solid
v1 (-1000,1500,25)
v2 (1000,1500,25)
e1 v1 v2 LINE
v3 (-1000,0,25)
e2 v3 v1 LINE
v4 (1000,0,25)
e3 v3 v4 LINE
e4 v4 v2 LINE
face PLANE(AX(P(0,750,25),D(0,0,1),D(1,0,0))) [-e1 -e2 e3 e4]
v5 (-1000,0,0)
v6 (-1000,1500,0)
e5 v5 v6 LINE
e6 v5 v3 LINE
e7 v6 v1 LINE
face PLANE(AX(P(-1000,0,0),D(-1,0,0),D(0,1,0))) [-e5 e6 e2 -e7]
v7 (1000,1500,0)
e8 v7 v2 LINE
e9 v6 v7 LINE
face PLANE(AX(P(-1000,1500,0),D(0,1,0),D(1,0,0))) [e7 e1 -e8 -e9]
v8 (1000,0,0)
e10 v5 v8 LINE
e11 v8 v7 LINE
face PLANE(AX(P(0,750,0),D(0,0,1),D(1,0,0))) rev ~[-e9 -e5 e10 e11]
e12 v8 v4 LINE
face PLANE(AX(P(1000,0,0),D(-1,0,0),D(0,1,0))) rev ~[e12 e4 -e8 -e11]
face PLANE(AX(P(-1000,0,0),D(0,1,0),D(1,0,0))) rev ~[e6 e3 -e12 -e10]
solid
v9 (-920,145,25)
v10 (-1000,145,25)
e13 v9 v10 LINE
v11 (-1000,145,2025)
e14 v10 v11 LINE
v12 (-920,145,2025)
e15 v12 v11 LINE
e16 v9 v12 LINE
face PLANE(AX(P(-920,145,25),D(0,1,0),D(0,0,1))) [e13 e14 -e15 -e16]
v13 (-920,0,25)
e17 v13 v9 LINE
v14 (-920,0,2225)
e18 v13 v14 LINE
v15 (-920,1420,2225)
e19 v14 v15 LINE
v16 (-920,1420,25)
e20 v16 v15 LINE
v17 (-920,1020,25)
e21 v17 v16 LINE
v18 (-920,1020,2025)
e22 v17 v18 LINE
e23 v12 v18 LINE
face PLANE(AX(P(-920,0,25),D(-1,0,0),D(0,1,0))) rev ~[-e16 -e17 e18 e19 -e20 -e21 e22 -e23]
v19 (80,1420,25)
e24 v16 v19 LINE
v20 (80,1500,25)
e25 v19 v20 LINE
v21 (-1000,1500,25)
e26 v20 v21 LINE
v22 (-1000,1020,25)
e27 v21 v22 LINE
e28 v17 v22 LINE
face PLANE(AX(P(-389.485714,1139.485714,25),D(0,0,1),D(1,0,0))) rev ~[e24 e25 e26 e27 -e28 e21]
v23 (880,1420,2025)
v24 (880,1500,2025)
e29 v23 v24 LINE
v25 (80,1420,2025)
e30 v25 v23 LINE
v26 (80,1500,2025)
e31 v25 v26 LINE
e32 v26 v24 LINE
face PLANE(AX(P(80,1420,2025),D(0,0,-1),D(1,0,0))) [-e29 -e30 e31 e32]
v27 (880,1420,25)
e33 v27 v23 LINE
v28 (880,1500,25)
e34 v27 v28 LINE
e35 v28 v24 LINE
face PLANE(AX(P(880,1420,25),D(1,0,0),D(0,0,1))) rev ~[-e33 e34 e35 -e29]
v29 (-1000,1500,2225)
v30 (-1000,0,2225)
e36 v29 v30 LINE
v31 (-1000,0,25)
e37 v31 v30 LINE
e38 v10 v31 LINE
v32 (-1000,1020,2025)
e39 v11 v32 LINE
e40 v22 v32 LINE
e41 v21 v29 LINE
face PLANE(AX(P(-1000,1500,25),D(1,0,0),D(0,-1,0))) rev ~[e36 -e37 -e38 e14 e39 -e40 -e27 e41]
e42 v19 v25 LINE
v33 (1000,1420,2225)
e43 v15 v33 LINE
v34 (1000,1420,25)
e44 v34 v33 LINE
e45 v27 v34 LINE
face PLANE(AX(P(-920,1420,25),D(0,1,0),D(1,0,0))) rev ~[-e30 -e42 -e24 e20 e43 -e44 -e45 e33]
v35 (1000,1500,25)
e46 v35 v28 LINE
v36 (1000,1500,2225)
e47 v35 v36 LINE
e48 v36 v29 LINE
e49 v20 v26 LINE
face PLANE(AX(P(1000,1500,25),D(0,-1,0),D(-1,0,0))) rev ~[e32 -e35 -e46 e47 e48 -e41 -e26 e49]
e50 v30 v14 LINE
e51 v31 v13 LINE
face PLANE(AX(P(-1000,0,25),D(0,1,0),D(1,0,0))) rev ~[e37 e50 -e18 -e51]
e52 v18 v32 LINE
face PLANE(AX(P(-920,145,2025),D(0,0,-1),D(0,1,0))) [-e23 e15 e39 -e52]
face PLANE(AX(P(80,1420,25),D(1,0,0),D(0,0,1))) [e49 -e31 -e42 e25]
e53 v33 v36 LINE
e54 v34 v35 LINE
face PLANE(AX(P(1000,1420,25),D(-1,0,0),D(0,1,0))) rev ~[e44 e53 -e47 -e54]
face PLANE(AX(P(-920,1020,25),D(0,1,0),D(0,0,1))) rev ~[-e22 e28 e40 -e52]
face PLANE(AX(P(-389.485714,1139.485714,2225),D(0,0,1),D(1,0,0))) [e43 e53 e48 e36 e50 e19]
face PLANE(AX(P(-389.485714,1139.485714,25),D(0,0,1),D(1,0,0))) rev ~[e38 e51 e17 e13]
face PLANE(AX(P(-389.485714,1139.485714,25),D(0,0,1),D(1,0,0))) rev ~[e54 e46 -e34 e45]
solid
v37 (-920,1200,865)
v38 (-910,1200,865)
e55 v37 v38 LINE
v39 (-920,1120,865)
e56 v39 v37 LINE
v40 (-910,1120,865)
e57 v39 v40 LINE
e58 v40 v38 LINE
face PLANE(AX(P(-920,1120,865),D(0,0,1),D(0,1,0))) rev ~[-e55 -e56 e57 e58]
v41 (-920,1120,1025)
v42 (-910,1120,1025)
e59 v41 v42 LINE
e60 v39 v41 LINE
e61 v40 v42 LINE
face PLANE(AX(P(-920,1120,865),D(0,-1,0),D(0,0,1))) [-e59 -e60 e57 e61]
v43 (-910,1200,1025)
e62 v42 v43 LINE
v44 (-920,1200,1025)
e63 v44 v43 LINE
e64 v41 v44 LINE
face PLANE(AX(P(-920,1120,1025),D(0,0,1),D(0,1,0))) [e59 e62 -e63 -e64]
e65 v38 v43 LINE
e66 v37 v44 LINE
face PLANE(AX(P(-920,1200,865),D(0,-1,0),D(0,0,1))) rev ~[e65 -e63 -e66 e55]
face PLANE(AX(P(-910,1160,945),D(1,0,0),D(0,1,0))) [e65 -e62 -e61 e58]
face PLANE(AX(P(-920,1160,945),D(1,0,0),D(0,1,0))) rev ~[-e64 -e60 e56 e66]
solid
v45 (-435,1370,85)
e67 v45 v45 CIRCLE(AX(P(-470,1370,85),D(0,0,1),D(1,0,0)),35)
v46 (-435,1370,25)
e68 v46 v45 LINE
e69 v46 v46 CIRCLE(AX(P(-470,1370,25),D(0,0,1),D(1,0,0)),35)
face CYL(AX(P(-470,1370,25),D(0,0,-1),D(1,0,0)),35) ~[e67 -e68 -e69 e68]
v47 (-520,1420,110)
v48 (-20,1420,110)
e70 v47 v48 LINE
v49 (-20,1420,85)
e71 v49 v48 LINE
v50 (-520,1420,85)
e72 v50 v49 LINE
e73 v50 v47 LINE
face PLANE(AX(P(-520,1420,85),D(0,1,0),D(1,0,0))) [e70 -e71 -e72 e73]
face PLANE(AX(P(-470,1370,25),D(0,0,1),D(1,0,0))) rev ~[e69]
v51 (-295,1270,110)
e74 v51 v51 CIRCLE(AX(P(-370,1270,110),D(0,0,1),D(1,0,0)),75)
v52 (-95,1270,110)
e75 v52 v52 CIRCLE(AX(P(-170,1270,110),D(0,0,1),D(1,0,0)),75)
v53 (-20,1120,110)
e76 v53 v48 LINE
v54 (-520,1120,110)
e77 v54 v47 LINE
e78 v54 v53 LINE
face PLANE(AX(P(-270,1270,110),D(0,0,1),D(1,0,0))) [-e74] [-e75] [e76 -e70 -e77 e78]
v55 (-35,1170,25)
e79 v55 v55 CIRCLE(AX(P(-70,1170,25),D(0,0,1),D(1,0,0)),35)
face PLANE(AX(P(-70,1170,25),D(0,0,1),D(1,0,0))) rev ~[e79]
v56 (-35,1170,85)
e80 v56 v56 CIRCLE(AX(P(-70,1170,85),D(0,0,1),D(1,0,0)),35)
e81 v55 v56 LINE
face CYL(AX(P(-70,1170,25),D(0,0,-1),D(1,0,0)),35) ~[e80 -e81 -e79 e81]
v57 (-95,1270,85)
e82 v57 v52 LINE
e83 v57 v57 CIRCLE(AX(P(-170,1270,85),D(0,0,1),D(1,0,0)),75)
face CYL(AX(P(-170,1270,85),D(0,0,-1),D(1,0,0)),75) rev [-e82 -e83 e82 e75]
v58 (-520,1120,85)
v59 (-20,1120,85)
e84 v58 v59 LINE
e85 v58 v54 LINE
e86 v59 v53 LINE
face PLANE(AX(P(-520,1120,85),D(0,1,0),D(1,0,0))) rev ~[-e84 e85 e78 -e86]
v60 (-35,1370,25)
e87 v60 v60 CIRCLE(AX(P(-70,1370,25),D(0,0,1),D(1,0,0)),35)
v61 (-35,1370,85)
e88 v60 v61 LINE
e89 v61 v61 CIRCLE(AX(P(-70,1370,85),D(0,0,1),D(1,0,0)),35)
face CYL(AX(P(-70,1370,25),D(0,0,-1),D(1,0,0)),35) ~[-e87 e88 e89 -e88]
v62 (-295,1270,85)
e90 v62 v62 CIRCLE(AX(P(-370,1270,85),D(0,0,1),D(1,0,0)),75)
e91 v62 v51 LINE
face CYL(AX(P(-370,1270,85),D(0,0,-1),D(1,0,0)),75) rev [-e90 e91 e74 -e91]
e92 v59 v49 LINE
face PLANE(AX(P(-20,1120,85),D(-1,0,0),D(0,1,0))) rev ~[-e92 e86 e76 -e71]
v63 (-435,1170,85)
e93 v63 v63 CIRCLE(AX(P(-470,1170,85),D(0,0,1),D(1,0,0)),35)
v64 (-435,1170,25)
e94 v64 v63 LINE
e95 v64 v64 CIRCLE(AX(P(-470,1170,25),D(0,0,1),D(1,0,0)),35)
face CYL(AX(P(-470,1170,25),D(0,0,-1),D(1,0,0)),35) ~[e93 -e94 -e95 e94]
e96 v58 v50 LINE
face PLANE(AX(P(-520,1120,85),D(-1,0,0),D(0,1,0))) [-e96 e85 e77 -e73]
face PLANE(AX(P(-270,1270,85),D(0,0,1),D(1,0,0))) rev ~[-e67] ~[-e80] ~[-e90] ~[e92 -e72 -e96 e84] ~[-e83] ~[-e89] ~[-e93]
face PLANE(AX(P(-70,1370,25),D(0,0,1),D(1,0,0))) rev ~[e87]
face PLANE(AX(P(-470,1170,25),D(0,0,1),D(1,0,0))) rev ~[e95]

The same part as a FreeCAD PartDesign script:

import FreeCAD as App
import Part
import Sketcher
from FreeCAD import Vector
Q = App.Units.Quantity

doc = App.newDocument("Part")
body = doc.addObject("PartDesign::Body", "Body")

sketch1 = body.newObject("Sketcher::SketchObject", "Sketch")
sketch1.AttachmentSupport = (doc.getObject("XY_Plane"), [""])
sketch1.MapMode = "FlatFace"
sketch1.addGeometry([
    Part.LineSegment(Vector(-1000, 1500, 0), Vector(-1000, 0, 0)),
    Part.LineSegment(Vector(-1000, 0, 0), Vector(1000, 0, 0)),
    Part.LineSegment(Vector(1000, 0, 0), Vector(1000, 1500, 0)),
    Part.LineSegment(Vector(1000, 1500, 0), Vector(-1000, 1500, 0)),
], False)
sketch1.addConstraint([
    Sketcher.Constraint("Coincident", 0, 2, 1, 1),
    Sketcher.Constraint("Coincident", 1, 2, 2, 1),
    Sketcher.Constraint("Coincident", 2, 2, 3, 1),
    Sketcher.Constraint("Coincident", 3, 2, 0, 1),
    Sketcher.Constraint("Vertical", 0),
    Sketcher.Constraint("Horizontal", 1),
    Sketcher.Constraint("Vertical", 2),
    Sketcher.Constraint("Horizontal", 3),
    Sketcher.Constraint("Symmetric", 0, 2, 1, 2, -1, 1),
    Sketcher.Constraint("DistanceX", 1, 1, 1, 2, Q("2000 mm")),
    Sketcher.Constraint("DistanceY", 0, 2, 0, 1, Q("1500 mm")),
])
pad1 = body.newObject("PartDesign::Pad", "Pad")
pad1.Profile = sketch1
pad1.Length = 25
body2 = doc.addObject("PartDesign::Body", "Body001")

sketch2 = body2.newObject("Sketcher::SketchObject", "Sketch001")
sketch2.AttachmentSupport = (doc.getObject("XY_Plane001"), [""])
sketch2.MapMode = "FlatFace"
sketch2.AttachmentOffset = App.Placement(Vector(0, 0, 25), App.Rotation())
sketch2.addGeometry([
    Part.LineSegment(Vector(-1000, 1500, 0), Vector(-1000, 0, 0)),
    Part.LineSegment(Vector(-1000, 0, 0), Vector(-920, 0, 0)),
    Part.LineSegment(Vector(-920, 0, 0), Vector(-920, 1420, 0)),
    Part.LineSegment(Vector(-920, 1420, 0), Vector(1000, 1420, 0)),
    Part.LineSegment(Vector(1000, 1420, 0), Vector(1000, 1500, 0)),
    Part.LineSegment(Vector(1000, 1500, 0), Vector(-1000, 1500, 0)),
], False)
sketch2.addConstraint([
    Sketcher.Constraint("Coincident", 0, 2, 1, 1),
    Sketcher.Constraint("Coincident", 1, 2, 2, 1),
    Sketcher.Constraint("Coincident", 2, 2, 3, 1),
    Sketcher.Constraint("Coincident", 3, 2, 4, 1),
    Sketcher.Constraint("Coincident", 4, 2, 5, 1),
    Sketcher.Constraint("Coincident", 5, 2, 0, 1),
    Sketcher.Constraint("Vertical", 0),
    Sketcher.Constraint("Horizontal", 1),
    Sketcher.Constraint("Vertical", 2),
    Sketcher.Constraint("Horizontal", 3),
    Sketcher.Constraint("Vertical", 4),
    Sketcher.Constraint("Horizontal", 5),
    Sketcher.Constraint("PointOnObject", 0, 2, -1),
    Sketcher.Constraint("Equal", 1, 4),
    Sketcher.Constraint("DistanceX", 1, 1, 1, 2, Q("80 mm")),
    Sketcher.Constraint("DistanceX", 3, 1, 3, 2, Q("1920 mm")),
    Sketcher.Constraint("DistanceY", 0, 2, 0, 1, Q("1500 mm")),
    Sketcher.Constraint("DistanceX", 0, 2, -1, 1, Q("1000 mm")),
])
pad2 = body2.newObject("PartDesign::Pad", "Pad001")
pad2.Profile = sketch2
pad2.Length = 2200

sketch3 = body2.newObject("Sketcher::SketchObject", "Sketch002")
sketch3.AttachmentSupport = (doc.getObject("YZ_Plane001"), [""])
sketch3.MapMode = "FlatFace"
sketch3.AttachmentOffset = App.Placement(Vector(0, 0, -920), App.Rotation())
sketch3.addGeometry([
    Part.LineSegment(Vector(145, 2025, 0), Vector(145, 25, 0)),
    Part.LineSegment(Vector(145, 25, 0), Vector(1020, 25, 0)),
    Part.LineSegment(Vector(1020, 25, 0), Vector(1020, 2025, 0)),
    Part.LineSegment(Vector(1020, 2025, 0), Vector(145, 2025, 0)),
], False)
sketch3.addConstraint([
    Sketcher.Constraint("Coincident", 0, 2, 1, 1),
    Sketcher.Constraint("Coincident", 1, 2, 2, 1),
    Sketcher.Constraint("Coincident", 2, 2, 3, 1),
    Sketcher.Constraint("Coincident", 3, 2, 0, 1),
    Sketcher.Constraint("Vertical", 0),
    Sketcher.Constraint("Horizontal", 1),
    Sketcher.Constraint("Vertical", 2),
    Sketcher.Constraint("Horizontal", 3),
    Sketcher.Constraint("DistanceX", 1, 1, 1, 2, Q("875 mm")),
    Sketcher.Constraint("DistanceY", 0, 2, 0, 1, Q("2000 mm")),
    Sketcher.Constraint("DistanceX", -1, 1, 0, 2, Q("145 mm")),
    Sketcher.Constraint("DistanceY", -1, 1, 0, 2, Q("25 mm")),
])
pocket1 = body2.newObject("PartDesign::Pocket", "Pocket")
pocket1.Profile = sketch3
pocket1.Type = "ThroughAll"

sketch4 = body2.newObject("Sketcher::SketchObject", "Sketch003")
sketch4.AttachmentSupport = (doc.getObject("XZ_Plane001"), [""])
sketch4.MapMode = "FlatFace"
sketch4.AttachmentOffset = App.Placement(Vector(0, 0, -1420), App.Rotation())
sketch4.addGeometry([
    Part.LineSegment(Vector(80, 2025, 0), Vector(80, 25, 0)),
    Part.LineSegment(Vector(80, 25, 0), Vector(880, 25, 0)),
    Part.LineSegment(Vector(880, 25, 0), Vector(880, 2025, 0)),
    Part.LineSegment(Vector(880, 2025, 0), Vector(80, 2025, 0)),
], False)
sketch4.addConstraint([
    Sketcher.Constraint("Coincident", 0, 2, 1, 1),
    Sketcher.Constraint("Coincident", 1, 2, 2, 1),
    Sketcher.Constraint("Coincident", 2, 2, 3, 1),
    Sketcher.Constraint("Coincident", 3, 2, 0, 1),
    Sketcher.Constraint("Vertical", 0),
    Sketcher.Constraint("Horizontal", 1),
    Sketcher.Constraint("Vertical", 2),
    Sketcher.Constraint("Horizontal", 3),
    Sketcher.Constraint("DistanceX", 1, 1, 1, 2, Q("800 mm")),
    Sketcher.Constraint("DistanceY", 0, 2, 0, 1, Q("2000 mm")),
    Sketcher.Constraint("DistanceX", -1, 1, 0, 2, Q("80 mm")),
    Sketcher.Constraint("DistanceY", -1, 1, 0, 2, Q("25 mm")),
])
pocket2 = body2.newObject("PartDesign::Pocket", "Pocket001")
pocket2.Profile = sketch4
pocket2.Type = "ThroughAll"
body3 = doc.addObject("PartDesign::Body", "Body002")

sketch5 = body3.newObject("Sketcher::SketchObject", "Sketch004")
sketch5.AttachmentSupport = (doc.getObject("XY_Plane002"), [""])
sketch5.MapMode = "FlatFace"
sketch5.AttachmentOffset = App.Placement(Vector(0, 0, 25), App.Rotation())
sketch5.addGeometry(Part.Circle(Vector(-470, 1370, 0), Vector(0, 0, 1), 35), False)
sketch5.addConstraint([
    Sketcher.Constraint("Diameter", 0, Q("70 mm")),
    Sketcher.Constraint("DistanceX", 0, 3, -1, 1, Q("470 mm")),
    Sketcher.Constraint("DistanceY", -1, 1, 0, 3, Q("1370 mm")),
])
pad3 = body3.newObject("PartDesign::Pad", "Pad002")
pad3.Profile = sketch5
pad3.Length = 60
body4 = doc.addObject("PartDesign::Body", "Body003")

sketch6 = body4.newObject("Sketcher::SketchObject", "Sketch005")
sketch6.AttachmentSupport = (doc.getObject("XY_Plane003"), [""])
sketch6.MapMode = "FlatFace"
sketch6.AttachmentOffset = App.Placement(Vector(0, 0, 25), App.Rotation())
sketch6.addGeometry(Part.Circle(Vector(-470, 1170, 0), Vector(0, 0, 1), 35), False)
sketch6.addConstraint([
    Sketcher.Constraint("Diameter", 0, Q("70 mm")),
    Sketcher.Constraint("DistanceX", 0, 3, -1, 1, Q("470 mm")),
    Sketcher.Constraint("DistanceY", -1, 1, 0, 3, Q("1170 mm")),
])
pad4 = body4.newObject("PartDesign::Pad", "Pad003")
pad4.Profile = sketch6
pad4.Length = 60
body5 = doc.addObject("PartDesign::Body", "Body004")

sketch7 = body5.newObject("Sketcher::SketchObject", "Sketch006")
sketch7.AttachmentSupport = (doc.getObject("XY_Plane004"), [""])
sketch7.MapMode = "FlatFace"
sketch7.AttachmentOffset = App.Placement(Vector(0, 0, 25), App.Rotation())
sketch7.addGeometry(Part.Circle(Vector(-70, 1370, 0), Vector(0, 0, 1), 35), False)
sketch7.addConstraint([
    Sketcher.Constraint("Diameter", 0, Q("70 mm")),
    Sketcher.Constraint("DistanceX", 0, 3, -1, 1, Q("70 mm")),
    Sketcher.Constraint("DistanceY", -1, 1, 0, 3, Q("1370 mm")),
])
pad5 = body5.newObject("PartDesign::Pad", "Pad004")
pad5.Profile = sketch7
pad5.Length = 60
body6 = doc.addObject("PartDesign::Body", "Body005")

sketch8 = body6.newObject("Sketcher::SketchObject", "Sketch007")
sketch8.AttachmentSupport = (doc.getObject("XY_Plane005"), [""])
sketch8.MapMode = "FlatFace"
sketch8.AttachmentOffset = App.Placement(Vector(0, 0, 25), App.Rotation())
sketch8.addGeometry(Part.Circle(Vector(-70, 1170, 0), Vector(0, 0, 1), 35), False)
sketch8.addConstraint([
    Sketcher.Constraint("Diameter", 0, Q("70 mm")),
    Sketcher.Constraint("DistanceX", 0, 3, -1, 1, Q("70 mm")),
    Sketcher.Constraint("DistanceY", -1, 1, 0, 3, Q("1170 mm")),
])
pad6 = body6.newObject("PartDesign::Pad", "Pad005")
pad6.Profile = sketch8
pad6.Length = 60
body3.AllowCompound = True
doc.recompute()

boolean = body3.newObject("PartDesign::Boolean", "Boolean")
boolean.Type = "Fuse"
boolean.addObjects([body4])
doc.recompute()

boolean2 = body3.newObject("PartDesign::Boolean", "Boolean001")
boolean2.Type = "Fuse"
boolean2.addObjects([body5])
doc.recompute()

boolean3 = body3.newObject("PartDesign::Boolean", "Boolean002")
boolean3.Type = "Fuse"
boolean3.addObjects([body6])

sketch9 = body3.newObject("Sketcher::SketchObject", "Sketch008")
sketch9.AttachmentSupport = (doc.getObject("XY_Plane002"), [""])
sketch9.MapMode = "FlatFace"
sketch9.AttachmentOffset = App.Placement(Vector(0, 0, 85), App.Rotation())
sketch9.addGeometry([
    Part.LineSegment(Vector(-520, 1420, 0), Vector(-520, 1120, 0)),
    Part.LineSegment(Vector(-520, 1120, 0), Vector(-20, 1120, 0)),
    Part.LineSegment(Vector(-20, 1120, 0), Vector(-20, 1420, 0)),
    Part.LineSegment(Vector(-20, 1420, 0), Vector(-520, 1420, 0)),
    Part.Circle(Vector(-370, 1270, 0), Vector(0, 0, 1), 75),
    Part.Circle(Vector(-170, 1270, 0), Vector(0, 0, 1), 75),
], False)
sketch9.addConstraint([
    Sketcher.Constraint("Coincident", 0, 2, 1, 1),
    Sketcher.Constraint("Coincident", 1, 2, 2, 1),
    Sketcher.Constraint("Coincident", 2, 2, 3, 1),
    Sketcher.Constraint("Coincident", 3, 2, 0, 1),
    Sketcher.Constraint("Vertical", 0),
    Sketcher.Constraint("Horizontal", 1),
    Sketcher.Constraint("Vertical", 2),
    Sketcher.Constraint("Horizontal", 3),
    Sketcher.Constraint("Equal", 4, 5),
    Sketcher.Constraint("Horizontal", 4, 3, 5, 3),
    Sketcher.Constraint("Diameter", 4, Q("150 mm")),
    Sketcher.Constraint("DistanceX", 1, 1, 1, 2, Q("500 mm")),
    Sketcher.Constraint("DistanceY", 0, 2, 0, 1, Q("300 mm")),
    Sketcher.Constraint("DistanceX", 4, 3, -1, 1, Q("370 mm")),
    Sketcher.Constraint("DistanceY", -1, 1, 4, 3, Q("1270 mm")),
    Sketcher.Constraint("DistanceX", 5, 3, -1, 1, Q("170 mm")),
    Sketcher.Constraint("DistanceX", 0, 2, -1, 1, Q("520 mm")),
    Sketcher.Constraint("DistanceY", -1, 1, 0, 2, Q("1120 mm")),
])
pad7 = body3.newObject("PartDesign::Pad", "Pad006")
pad7.Profile = sketch9
pad7.Length = 25
body7 = doc.addObject("PartDesign::Body", "Body006")

sketch10 = body7.newObject("Sketcher::SketchObject", "Sketch009")
sketch10.AttachmentSupport = (doc.getObject("YZ_Plane006"), [""])
sketch10.MapMode = "FlatFace"
sketch10.AttachmentOffset = App.Placement(Vector(0, 0, -920), App.Rotation())
sketch10.addGeometry([
    Part.LineSegment(Vector(1120, 1025, 0), Vector(1120, 865, 0)),
    Part.LineSegment(Vector(1120, 865, 0), Vector(1200, 865, 0)),
    Part.LineSegment(Vector(1200, 865, 0), Vector(1200, 1025, 0)),
    Part.LineSegment(Vector(1200, 1025, 0), Vector(1120, 1025, 0)),
], False)
sketch10.addConstraint([
    Sketcher.Constraint("Coincident", 0, 2, 1, 1),
    Sketcher.Constraint("Coincident", 1, 2, 2, 1),
    Sketcher.Constraint("Coincident", 2, 2, 3, 1),
    Sketcher.Constraint("Coincident", 3, 2, 0, 1),
    Sketcher.Constraint("Vertical", 0),
    Sketcher.Constraint("Horizontal", 1),
    Sketcher.Constraint("Vertical", 2),
    Sketcher.Constraint("Horizontal", 3),
    Sketcher.Constraint("DistanceX", 1, 1, 1, 2, Q("80 mm")),
    Sketcher.Constraint("DistanceY", 0, 2, 0, 1, Q("160 mm")),
    Sketcher.Constraint("DistanceX", -1, 1, 0, 2, Q("1120 mm")),
    Sketcher.Constraint("DistanceY", -1, 1, 0, 2, Q("865 mm")),
])
pad8 = body7.newObject("PartDesign::Pad", "Pad007")
pad8.Profile = sketch10
pad8.Length = 10

doc.recompute()
